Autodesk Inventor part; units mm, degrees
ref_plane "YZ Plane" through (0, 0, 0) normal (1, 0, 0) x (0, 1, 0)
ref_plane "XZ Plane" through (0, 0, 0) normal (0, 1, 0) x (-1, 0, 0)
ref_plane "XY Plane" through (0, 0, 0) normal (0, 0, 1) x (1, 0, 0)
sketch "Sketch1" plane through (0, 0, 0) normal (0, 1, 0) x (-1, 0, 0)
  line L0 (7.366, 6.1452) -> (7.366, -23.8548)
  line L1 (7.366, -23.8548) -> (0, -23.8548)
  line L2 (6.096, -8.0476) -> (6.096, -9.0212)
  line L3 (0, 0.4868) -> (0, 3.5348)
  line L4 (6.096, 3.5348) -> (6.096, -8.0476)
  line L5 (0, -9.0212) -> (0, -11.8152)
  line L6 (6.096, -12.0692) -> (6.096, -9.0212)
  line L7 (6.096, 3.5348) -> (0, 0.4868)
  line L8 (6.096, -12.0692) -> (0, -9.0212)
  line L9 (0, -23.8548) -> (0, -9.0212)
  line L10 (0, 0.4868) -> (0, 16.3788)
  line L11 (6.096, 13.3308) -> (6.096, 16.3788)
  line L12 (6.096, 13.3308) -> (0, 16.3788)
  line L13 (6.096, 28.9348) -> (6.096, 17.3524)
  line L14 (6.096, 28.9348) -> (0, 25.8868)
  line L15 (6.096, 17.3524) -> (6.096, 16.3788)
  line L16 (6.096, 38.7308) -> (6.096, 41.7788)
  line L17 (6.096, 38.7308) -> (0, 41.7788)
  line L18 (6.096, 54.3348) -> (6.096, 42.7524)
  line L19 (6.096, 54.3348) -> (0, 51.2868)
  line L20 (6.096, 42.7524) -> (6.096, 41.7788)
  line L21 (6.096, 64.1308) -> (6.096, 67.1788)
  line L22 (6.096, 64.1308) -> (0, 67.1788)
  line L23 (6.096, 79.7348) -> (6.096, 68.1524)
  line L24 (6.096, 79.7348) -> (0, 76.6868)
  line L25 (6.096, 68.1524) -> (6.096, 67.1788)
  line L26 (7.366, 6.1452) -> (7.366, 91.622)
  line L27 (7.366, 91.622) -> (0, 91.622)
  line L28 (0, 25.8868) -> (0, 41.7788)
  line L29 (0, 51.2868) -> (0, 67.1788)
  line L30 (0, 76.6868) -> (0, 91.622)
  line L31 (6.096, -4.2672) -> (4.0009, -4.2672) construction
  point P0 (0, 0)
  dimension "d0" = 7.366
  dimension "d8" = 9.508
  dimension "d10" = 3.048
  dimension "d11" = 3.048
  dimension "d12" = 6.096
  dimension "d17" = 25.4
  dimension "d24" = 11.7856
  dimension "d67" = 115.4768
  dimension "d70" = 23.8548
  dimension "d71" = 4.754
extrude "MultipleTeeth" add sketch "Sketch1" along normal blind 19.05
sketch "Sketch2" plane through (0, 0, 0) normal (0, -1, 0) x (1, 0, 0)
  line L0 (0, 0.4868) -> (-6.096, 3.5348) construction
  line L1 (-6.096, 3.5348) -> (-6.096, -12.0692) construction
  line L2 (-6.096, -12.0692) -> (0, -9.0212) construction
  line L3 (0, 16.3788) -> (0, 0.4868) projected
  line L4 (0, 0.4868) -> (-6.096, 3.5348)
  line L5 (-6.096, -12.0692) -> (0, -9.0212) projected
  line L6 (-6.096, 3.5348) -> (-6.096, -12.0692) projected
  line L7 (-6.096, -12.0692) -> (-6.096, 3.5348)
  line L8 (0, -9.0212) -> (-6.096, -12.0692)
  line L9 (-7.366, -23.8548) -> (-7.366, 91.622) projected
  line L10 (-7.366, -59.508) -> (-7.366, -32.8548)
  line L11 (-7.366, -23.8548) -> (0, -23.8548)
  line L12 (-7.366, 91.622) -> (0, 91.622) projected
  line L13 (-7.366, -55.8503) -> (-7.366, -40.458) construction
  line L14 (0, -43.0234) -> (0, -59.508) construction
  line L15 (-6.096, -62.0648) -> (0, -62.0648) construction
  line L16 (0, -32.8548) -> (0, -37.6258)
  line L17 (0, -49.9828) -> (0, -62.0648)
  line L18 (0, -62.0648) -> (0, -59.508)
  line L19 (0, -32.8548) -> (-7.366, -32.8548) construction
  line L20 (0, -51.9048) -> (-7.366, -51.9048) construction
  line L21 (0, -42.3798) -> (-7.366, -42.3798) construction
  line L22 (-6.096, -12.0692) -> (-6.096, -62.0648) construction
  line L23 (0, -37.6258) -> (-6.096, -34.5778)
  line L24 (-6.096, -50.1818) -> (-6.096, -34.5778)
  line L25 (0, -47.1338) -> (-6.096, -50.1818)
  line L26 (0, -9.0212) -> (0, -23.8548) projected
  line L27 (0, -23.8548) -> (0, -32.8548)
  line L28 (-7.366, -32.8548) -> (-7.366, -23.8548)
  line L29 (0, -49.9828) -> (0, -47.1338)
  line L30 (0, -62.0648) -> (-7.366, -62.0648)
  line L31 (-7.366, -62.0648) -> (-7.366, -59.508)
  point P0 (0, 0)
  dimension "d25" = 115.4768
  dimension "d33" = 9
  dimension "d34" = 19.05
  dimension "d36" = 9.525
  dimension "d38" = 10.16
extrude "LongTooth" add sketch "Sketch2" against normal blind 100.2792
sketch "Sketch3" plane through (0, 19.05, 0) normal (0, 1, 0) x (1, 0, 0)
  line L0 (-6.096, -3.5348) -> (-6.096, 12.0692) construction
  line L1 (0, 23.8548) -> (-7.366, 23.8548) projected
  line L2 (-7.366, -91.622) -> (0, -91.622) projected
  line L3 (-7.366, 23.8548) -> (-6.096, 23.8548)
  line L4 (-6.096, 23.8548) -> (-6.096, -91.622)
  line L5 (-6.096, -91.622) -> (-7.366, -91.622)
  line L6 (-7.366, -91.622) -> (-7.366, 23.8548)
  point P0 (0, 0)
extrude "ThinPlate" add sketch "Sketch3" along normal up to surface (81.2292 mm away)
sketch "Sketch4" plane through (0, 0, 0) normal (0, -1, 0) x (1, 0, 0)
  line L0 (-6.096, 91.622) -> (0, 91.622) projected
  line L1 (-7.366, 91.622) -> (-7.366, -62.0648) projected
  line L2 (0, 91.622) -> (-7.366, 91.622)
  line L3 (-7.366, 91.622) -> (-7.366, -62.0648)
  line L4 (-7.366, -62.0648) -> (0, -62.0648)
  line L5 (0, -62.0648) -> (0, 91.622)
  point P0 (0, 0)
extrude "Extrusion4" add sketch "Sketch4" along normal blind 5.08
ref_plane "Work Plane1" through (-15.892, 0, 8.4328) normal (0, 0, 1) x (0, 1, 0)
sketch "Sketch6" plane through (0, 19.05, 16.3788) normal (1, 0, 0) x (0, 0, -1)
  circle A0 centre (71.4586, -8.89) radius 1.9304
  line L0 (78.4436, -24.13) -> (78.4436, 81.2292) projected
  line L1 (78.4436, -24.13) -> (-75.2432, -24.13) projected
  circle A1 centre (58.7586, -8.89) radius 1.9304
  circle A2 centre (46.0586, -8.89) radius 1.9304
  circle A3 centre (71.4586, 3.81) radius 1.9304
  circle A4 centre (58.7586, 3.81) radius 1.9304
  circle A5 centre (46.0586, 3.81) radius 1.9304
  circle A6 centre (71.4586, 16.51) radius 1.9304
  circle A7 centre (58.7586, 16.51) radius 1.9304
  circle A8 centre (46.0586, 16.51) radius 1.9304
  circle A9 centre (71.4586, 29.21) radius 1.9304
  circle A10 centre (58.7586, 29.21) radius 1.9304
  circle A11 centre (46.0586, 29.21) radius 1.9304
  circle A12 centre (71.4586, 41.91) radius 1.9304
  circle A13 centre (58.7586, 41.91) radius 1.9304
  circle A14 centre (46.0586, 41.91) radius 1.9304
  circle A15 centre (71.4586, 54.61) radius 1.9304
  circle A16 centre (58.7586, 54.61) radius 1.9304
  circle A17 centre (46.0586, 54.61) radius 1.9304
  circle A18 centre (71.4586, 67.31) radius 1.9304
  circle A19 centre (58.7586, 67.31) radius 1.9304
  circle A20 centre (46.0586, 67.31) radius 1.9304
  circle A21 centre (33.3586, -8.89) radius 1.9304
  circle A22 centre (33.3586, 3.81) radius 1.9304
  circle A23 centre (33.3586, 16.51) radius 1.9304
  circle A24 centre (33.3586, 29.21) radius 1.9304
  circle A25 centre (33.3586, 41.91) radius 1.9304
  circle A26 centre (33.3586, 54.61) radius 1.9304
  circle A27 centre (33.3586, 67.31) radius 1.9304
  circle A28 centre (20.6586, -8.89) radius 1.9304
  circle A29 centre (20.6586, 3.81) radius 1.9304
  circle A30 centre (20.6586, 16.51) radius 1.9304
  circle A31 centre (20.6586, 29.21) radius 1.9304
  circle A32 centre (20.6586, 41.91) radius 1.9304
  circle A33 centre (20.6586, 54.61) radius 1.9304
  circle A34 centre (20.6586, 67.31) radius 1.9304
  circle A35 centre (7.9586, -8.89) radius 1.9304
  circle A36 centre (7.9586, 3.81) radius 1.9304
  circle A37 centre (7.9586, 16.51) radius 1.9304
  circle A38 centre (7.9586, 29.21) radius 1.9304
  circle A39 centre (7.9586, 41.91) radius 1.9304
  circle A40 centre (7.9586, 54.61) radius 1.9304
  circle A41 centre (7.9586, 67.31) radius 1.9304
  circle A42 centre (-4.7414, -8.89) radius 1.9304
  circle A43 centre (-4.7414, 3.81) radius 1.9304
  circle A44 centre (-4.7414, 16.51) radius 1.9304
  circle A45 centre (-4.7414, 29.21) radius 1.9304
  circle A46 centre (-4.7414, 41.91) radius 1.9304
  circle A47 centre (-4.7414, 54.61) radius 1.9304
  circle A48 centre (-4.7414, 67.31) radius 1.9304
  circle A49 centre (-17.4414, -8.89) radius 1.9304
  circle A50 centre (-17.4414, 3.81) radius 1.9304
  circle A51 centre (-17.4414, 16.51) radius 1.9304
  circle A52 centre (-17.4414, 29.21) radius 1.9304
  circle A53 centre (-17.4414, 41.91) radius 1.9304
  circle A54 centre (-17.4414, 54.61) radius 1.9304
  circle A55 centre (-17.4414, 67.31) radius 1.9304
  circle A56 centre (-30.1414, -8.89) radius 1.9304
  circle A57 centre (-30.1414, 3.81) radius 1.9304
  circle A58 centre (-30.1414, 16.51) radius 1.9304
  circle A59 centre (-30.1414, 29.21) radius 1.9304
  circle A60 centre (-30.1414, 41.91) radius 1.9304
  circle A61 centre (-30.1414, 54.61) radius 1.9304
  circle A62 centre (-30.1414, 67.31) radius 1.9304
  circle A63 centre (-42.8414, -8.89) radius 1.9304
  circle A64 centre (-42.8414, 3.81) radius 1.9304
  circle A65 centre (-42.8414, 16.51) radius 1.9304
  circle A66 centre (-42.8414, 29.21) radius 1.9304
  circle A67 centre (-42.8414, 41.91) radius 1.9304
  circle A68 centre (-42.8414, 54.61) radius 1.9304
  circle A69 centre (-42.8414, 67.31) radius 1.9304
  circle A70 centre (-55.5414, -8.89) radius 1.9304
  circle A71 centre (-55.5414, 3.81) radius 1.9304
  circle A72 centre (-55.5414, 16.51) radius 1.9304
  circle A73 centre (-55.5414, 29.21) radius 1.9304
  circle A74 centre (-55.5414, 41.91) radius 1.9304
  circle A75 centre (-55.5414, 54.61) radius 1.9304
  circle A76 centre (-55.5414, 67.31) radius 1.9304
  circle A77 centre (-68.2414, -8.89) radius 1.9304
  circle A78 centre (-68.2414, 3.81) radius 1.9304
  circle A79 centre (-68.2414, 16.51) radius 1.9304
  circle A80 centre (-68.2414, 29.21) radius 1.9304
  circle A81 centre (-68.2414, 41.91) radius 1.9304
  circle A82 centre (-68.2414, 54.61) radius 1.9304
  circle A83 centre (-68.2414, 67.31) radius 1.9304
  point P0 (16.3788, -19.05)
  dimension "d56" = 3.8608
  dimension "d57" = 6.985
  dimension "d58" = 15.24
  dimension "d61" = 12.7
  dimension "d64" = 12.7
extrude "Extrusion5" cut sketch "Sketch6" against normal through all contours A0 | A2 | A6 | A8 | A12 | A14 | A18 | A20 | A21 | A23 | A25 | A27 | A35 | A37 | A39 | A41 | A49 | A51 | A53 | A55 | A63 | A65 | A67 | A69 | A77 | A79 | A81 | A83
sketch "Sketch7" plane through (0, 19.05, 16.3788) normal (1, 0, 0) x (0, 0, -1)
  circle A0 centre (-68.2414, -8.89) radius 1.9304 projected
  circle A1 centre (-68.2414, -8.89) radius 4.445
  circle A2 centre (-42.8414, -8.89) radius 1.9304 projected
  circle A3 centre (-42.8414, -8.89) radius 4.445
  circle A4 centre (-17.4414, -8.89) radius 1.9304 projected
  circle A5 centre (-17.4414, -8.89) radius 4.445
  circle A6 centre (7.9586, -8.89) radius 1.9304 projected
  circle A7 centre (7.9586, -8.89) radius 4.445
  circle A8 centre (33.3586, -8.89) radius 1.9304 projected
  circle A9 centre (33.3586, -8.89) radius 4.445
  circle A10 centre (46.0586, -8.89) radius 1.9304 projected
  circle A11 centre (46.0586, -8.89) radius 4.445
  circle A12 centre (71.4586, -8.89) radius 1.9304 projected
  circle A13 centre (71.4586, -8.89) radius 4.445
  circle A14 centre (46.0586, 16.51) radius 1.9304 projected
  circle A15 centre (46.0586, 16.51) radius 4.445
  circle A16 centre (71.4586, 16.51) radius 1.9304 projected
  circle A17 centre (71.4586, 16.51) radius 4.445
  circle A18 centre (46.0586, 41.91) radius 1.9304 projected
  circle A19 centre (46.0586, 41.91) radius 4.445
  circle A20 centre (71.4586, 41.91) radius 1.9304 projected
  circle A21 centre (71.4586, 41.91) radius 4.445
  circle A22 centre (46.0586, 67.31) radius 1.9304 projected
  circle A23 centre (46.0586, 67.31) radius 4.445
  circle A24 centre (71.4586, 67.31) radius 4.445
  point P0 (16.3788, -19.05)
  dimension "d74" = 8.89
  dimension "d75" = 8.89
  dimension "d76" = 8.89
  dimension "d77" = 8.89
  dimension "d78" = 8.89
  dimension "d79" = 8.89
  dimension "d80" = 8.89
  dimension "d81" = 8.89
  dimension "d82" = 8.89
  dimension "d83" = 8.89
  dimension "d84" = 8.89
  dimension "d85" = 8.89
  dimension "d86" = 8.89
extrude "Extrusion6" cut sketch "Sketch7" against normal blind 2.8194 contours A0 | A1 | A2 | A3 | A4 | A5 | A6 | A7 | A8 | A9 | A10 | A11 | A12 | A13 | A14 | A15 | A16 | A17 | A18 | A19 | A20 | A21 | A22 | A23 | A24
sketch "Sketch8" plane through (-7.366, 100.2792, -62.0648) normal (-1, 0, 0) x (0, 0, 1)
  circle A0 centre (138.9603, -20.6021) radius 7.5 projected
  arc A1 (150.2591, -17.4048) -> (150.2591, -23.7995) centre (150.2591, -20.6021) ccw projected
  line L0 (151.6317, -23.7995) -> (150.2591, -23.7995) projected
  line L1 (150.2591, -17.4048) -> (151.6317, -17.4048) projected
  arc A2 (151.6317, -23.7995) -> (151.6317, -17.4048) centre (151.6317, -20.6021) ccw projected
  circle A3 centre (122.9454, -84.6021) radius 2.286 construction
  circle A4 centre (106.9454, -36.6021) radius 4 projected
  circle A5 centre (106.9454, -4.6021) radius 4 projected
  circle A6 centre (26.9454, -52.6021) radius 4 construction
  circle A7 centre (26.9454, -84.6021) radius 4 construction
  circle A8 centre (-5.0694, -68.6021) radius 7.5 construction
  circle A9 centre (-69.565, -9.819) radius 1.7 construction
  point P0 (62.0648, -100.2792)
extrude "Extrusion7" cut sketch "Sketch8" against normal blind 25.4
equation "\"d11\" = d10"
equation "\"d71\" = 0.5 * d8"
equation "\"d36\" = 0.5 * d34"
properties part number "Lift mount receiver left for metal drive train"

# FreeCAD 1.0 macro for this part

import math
import FreeCAD as App
import Part
import Sketcher
Q = App.Units.Quantity


def add_polygon(sketch, points):
    """Adds a closed chain of lines whose ends are joined by coincident constraints."""
    first, n = sketch.GeometryCount, len(points)
    for a, b in zip(points, points[1:] + points[:1]):
        sketch.addGeometry(Part.LineSegment(App.Vector(*a, 0), App.Vector(*b, 0)), False)
    for i in range(n):
        sketch.addConstraint(Sketcher.Constraint("Coincident", first + i, 2, first + (i + 1) % n, 1))

doc = App.newDocument("Part")
body = doc.addObject("PartDesign::Body", "Body")

sketch1 = body.newObject("Sketcher::SketchObject", "Sketch")
sketch1.AttachmentSupport = (doc.getObject("XZ_Plane"), [""])
sketch1.MapMode = "FlatFace"
add_polygon(sketch1, [(-7, -24), (-7, 92), (0, 92), (0, 77), (-6, 80), (-6, 64), (0, 67), (0, 51), (-6, 54), (-6, 39), (0, 42), (0, 26), (-6, 29), (-6, 13), (0, 16), (0, 0), (-6, 4), (-6, -12), (0, -9), (0, -24)])
sketch1.addConstraint([
    Sketcher.Constraint("Vertical", 0),
    Sketcher.Constraint("Horizontal", 1),
    Sketcher.Constraint("Vertical", 2),
    Sketcher.Constraint("Vertical", 4),
    Sketcher.Constraint("Vertical", 6),
    Sketcher.Constraint("Vertical", 8),
    Sketcher.Constraint("Vertical", 10),
    Sketcher.Constraint("Vertical", 12),
    Sketcher.Constraint("Vertical", 14),
    Sketcher.Constraint("Vertical", 16),
    Sketcher.Constraint("Vertical", 18),
    Sketcher.Constraint("Horizontal", 19),
    Sketcher.Constraint("PointOnObject", 1, 2, -2),
    Sketcher.Constraint("PointOnObject", 5, 2, -2),
    Sketcher.Constraint("PointOnObject", 9, 2, -2),
    Sketcher.Constraint("PointOnObject", 13, 2, -2),
    Sketcher.Constraint("PointOnObject", 17, 2, -2),
    Sketcher.Constraint("Parallel", 3, 7),
    Sketcher.Constraint("Parallel", 5, 9),
    Sketcher.Constraint("Parallel", 7, 11),
    Sketcher.Constraint("Parallel", 9, 13),
    Sketcher.Constraint("Parallel", 11, 15),
    Sketcher.Constraint("Parallel", 13, 17),
    Sketcher.Constraint("Vertical", 4, 2, 7, 2),
    Sketcher.Constraint("Vertical", 8, 2, 11, 2),
    Sketcher.Constraint("Vertical", 12, 2, 15, 2),
    Sketcher.Constraint("Equal", 4, 8),
    Sketcher.Constraint("Equal", 6, 10),
    Sketcher.Constraint("Equal", 8, 12),
    Sketcher.Constraint("Equal", 10, 14),
    Sketcher.Constraint("Equal", 12, 16),
    Sketcher.Constraint("Equal", 3, 5),
    Sketcher.Constraint("DistanceY", 6, 2, 2, 2, Q("1 in")),
    Sketcher.Constraint("DistanceX", 1, 1, 1, 2, Q("0.29 in")),
    Sketcher.Constraint("DistanceX", 3, 2, -1, 1, Q("0.24 in")),
    Sketcher.Constraint("DistanceY", 2, 2, 3, 2, Q("0.12 in")),
    Sketcher.Constraint("DistanceY", 18, 2, 16, 2, Q("0.464 in")),
    Sketcher.Constraint("DistanceY", 0, 1, 0, 2, 115.4768),
    Sketcher.Constraint("DistanceY", 2, 2, 2, 1, Q("0.588 in")),
    Sketcher.Constraint("DistanceY", 18, 2, -1, 1, 23.8548),
])
pad1 = body.newObject("PartDesign::Pad", "Pad")
pad1.Profile = sketch1
pad1.Length = Q("0.75 in")
pad1.Reversed = True

sketch2 = body.newObject("Sketcher::SketchObject", "Sketch001")
sketch2.AttachmentSupport = (doc.getObject("XZ_Plane"), [""])
sketch2.MapMode = "FlatFace"
add_polygon(sketch2, [(-7, -24), (-7, -62), (0, -62), (0, -47), (-6, -50), (-6, -35), (0, -38), (0, -24)])
sketch2.addConstraint([
    Sketcher.Constraint("Vertical", 0),
    Sketcher.Constraint("Horizontal", 1),
    Sketcher.Constraint("Vertical", 2),
    Sketcher.Constraint("Vertical", 4),
    Sketcher.Constraint("Vertical", 6),
    Sketcher.Constraint("Horizontal", 7),
    Sketcher.Constraint("PointOnObject", 1, 2, -2),
    Sketcher.Constraint("PointOnObject", 5, 2, -2),
    Sketcher.Constraint("Equal", 3, 5),
    Sketcher.Constraint("DistanceX", 1, 1, 1, 2, Q("0.29 in")),
    Sketcher.Constraint("DistanceX", 3, 2, -1, 1, Q("0.24 in")),
    Sketcher.Constraint("DistanceY", 3, 2, 2, 2, Q("0.12 in")),
    Sketcher.Constraint("DistanceY", 0, 2, 0, 1, 38.21),
    Sketcher.Constraint("DistanceY", 2, 1, 2, 2, 14.931),
    Sketcher.Constraint("DistanceY", 4, 1, 4, 2, 15.604),
    Sketcher.Constraint("DistanceY", 0, 2, -1, 1, Q("2.4435 in")),
])
pad2 = body.newObject("PartDesign::Pad", "Pad001")
pad2.Profile = sketch2
pad2.Length = Q("3.948 in")
pad2.Reversed = True

sketch3 = body.newObject("Sketcher::SketchObject", "Sketch002")
sketch3.AttachmentSupport = (doc.getObject("XZ_Plane"), [""])
sketch3.MapMode = "FlatFace"
sketch3.AttachmentOffset = App.Placement(App.Vector(0, 0, -0.75 * 25.4), App.Rotation())
add_polygon(sketch3, [(-6.1, 91.6), (-6.1, -23.9), (-7.4, -23.9), (-7.4, 91.6)])
sketch3.addConstraint([
    Sketcher.Constraint("Vertical", 0),
    Sketcher.Constraint("Horizontal", 1),
    Sketcher.Constraint("Vertical", 2),
    Sketcher.Constraint("Horizontal", 3),
    Sketcher.Constraint("DistanceX", 1, 2, 1, 1, Q("0.05 in")),
    Sketcher.Constraint("DistanceX", 0, 2, -1, 1, Q("0.24 in")),
    Sketcher.Constraint("DistanceY", 0, 2, 0, 1, 115.4768),
    Sketcher.Constraint("DistanceY", 0, 2, -1, 1, 23.8548),
])
pad3 = body.newObject("PartDesign::Pad", "Pad002")
pad3.Profile = sketch3
pad3.Length = Q("3.198 in")
pad3.Reversed = True

sketch4 = body.newObject("Sketcher::SketchObject", "Sketch003")
sketch4.AttachmentSupport = (doc.getObject("XZ_Plane"), [""])
sketch4.MapMode = "FlatFace"
add_polygon(sketch4, [(0, 92), (-7, 92), (-7, -62), (0, -62)])
sketch4.addConstraint([
    Sketcher.Constraint("Horizontal", 0),
    Sketcher.Constraint("Vertical", 1),
    Sketcher.Constraint("Horizontal", 2),
    Sketcher.Constraint("Vertical", 3),
    Sketcher.Constraint("PointOnObject", 2, 2, -2),
    Sketcher.Constraint("DistanceX", 0, 2, 0, 1, Q("0.29 in")),
    Sketcher.Constraint("DistanceY", 1, 2, 1, 1, 153.6868),
    Sketcher.Constraint("DistanceY", 1, 2, -1, 1, Q("2.4435 in")),
])
pad4 = body.newObject("PartDesign::Pad", "Pad003")
pad4.Profile = sketch4
pad4.Length = Q("0.2 in")

sketch5 = body.newObject("Sketcher::SketchObject", "Sketch004")
sketch5.AttachmentSupport = (doc.getObject("YZ_Plane"), [""])
sketch5.MapMode = "FlatFace"
sketch5.addGeometry([
    Part.Circle(App.Vector(10.2, -55.1, 0), App.Vector(0, 0, 1), 1.9),
    Part.Circle(App.Vector(10.2, -29.7, 0), App.Vector(0, 0, 1), 1.9),
    Part.Circle(App.Vector(35.6, -55.1, 0), App.Vector(0, 0, 1), 1.9),
    Part.Circle(App.Vector(35.6, -29.7, 0), App.Vector(0, 0, 1), 1.9),
    Part.Circle(App.Vector(61, -55.1, 0), App.Vector(0, 0, 1), 1.9),
    Part.Circle(App.Vector(61, -29.7, 0), App.Vector(0, 0, 1), 1.9),
    Part.Circle(App.Vector(86.4, -55.1, 0), App.Vector(0, 0, 1), 1.9),
    Part.Circle(App.Vector(86.4, -29.7, 0), App.Vector(0, 0, 1), 1.9),
    Part.Circle(App.Vector(10.2, -17, 0), App.Vector(0, 0, 1), 1.9),
    Part.Circle(App.Vector(35.6, -17, 0), App.Vector(0, 0, 1), 1.9),
    Part.Circle(App.Vector(61, -17, 0), App.Vector(0, 0, 1), 1.9),
    Part.Circle(App.Vector(86.4, -17, 0), App.Vector(0, 0, 1), 1.9),
    Part.Circle(App.Vector(10.2, 8.4, 0), App.Vector(0, 0, 1), 1.9),
    Part.Circle(App.Vector(35.6, 8.4, 0), App.Vector(0, 0, 1), 1.9),
    Part.Circle(App.Vector(61, 8.4, 0), App.Vector(0, 0, 1), 1.9),
    Part.Circle(App.Vector(86.4, 8.4, 0), App.Vector(0, 0, 1), 1.9),
    Part.Circle(App.Vector(10.2, 33.8, 0), App.Vector(0, 0, 1), 1.9),
    Part.Circle(App.Vector(35.6, 33.8, 0), App.Vector(0, 0, 1), 1.9),
    Part.Circle(App.Vector(61, 33.8, 0), App.Vector(0, 0, 1), 1.9),
    Part.Circle(App.Vector(86.4, 33.8, 0), App.Vector(0, 0, 1), 1.9),
    Part.Circle(App.Vector(10.2, 59.2, 0), App.Vector(0, 0, 1), 1.9),
    Part.Circle(App.Vector(35.6, 59.2, 0), App.Vector(0, 0, 1), 1.9),
    Part.Circle(App.Vector(61, 59.2, 0), App.Vector(0, 0, 1), 1.9),
    Part.Circle(App.Vector(86.4, 59.2, 0), App.Vector(0, 0, 1), 1.9),
    Part.Circle(App.Vector(10.2, 84.6, 0), App.Vector(0, 0, 1), 1.9),
    Part.Circle(App.Vector(35.6, 84.6, 0), App.Vector(0, 0, 1), 1.9),
    Part.Circle(App.Vector(61, 84.6, 0), App.Vector(0, 0, 1), 1.9),
    Part.Circle(App.Vector(86.4, 84.6, 0), App.Vector(0, 0, 1), 1.9),
], False)
sketch5.addConstraint([
    Sketcher.Constraint("Equal", 0, 1),
    Sketcher.Constraint("Equal", 1, 2),
    Sketcher.Constraint("Equal", 2, 3),
    Sketcher.Constraint("Equal", 3, 4),
    Sketcher.Constraint("Equal", 4, 5),
    Sketcher.Constraint("Equal", 5, 6),
    Sketcher.Constraint("Equal", 6, 7),
    Sketcher.Constraint("Equal", 7, 8),
    Sketcher.Constraint("Equal", 8, 9),
    Sketcher.Constraint("Equal", 9, 10),
    Sketcher.Constraint("Equal", 10, 11),
    Sketcher.Constraint("Equal", 11, 12),
    Sketcher.Constraint("Equal", 12, 13),
    Sketcher.Constraint("Equal", 13, 14),
    Sketcher.Constraint("Equal", 14, 15),
    Sketcher.Constraint("Equal", 15, 16),
    Sketcher.Constraint("Equal", 16, 17),
    Sketcher.Constraint("Equal", 17, 18),
    Sketcher.Constraint("Equal", 18, 19),
    Sketcher.Constraint("Equal", 19, 20),
    Sketcher.Constraint("Equal", 20, 21),
    Sketcher.Constraint("Equal", 21, 22),
    Sketcher.Constraint("Equal", 22, 23),
    Sketcher.Constraint("Equal", 23, 24),
    Sketcher.Constraint("Equal", 24, 25),
    Sketcher.Constraint("Equal", 25, 26),
    Sketcher.Constraint("Equal", 26, 27),
    Sketcher.Constraint("Horizontal", 0, 3, 2, 3),
    Sketcher.Constraint("Horizontal", 1, 3, 3, 3),
    Sketcher.Constraint("Horizontal", 2, 3, 4, 3),
    Sketcher.Constraint("Horizontal", 3, 3, 5, 3),
    Sketcher.Constraint("Horizontal", 4, 3, 6, 3),
    Sketcher.Constraint("Horizontal", 5, 3, 7, 3),
    Sketcher.Constraint("Horizontal", 8, 3, 9, 3),
    Sketcher.Constraint("Horizontal", 9, 3, 10, 3),
    Sketcher.Constraint("Horizontal", 10, 3, 11, 3),
    Sketcher.Constraint("Horizontal", 12, 3, 13, 3),
    Sketcher.Constraint("Horizontal", 13, 3, 14, 3),
    Sketcher.Constraint("Horizontal", 14, 3, 15, 3),
    Sketcher.Constraint("Horizontal", 16, 3, 17, 3),
    Sketcher.Constraint("Horizontal", 17, 3, 18, 3),
    Sketcher.Constraint("Horizontal", 18, 3, 19, 3),
    Sketcher.Constraint("Horizontal", 20, 3, 21, 3),
    Sketcher.Constraint("Horizontal", 21, 3, 22, 3),
    Sketcher.Constraint("Horizontal", 22, 3, 23, 3),
    Sketcher.Constraint("Horizontal", 24, 3, 25, 3),
    Sketcher.Constraint("Horizontal", 25, 3, 26, 3),
    Sketcher.Constraint("Horizontal", 26, 3, 27, 3),
    Sketcher.Constraint("Vertical", 0, 3, 1, 3),
    Sketcher.Constraint("Vertical", 2, 3, 3, 3),
    Sketcher.Constraint("Vertical", 4, 3, 5, 3),
    Sketcher.Constraint("Vertical", 6, 3, 7, 3),
    Sketcher.Constraint("Vertical", 1, 3, 8, 3),
    Sketcher.Constraint("Vertical", 3, 3, 9, 3),
    Sketcher.Constraint("Vertical", 5, 3, 10, 3),
    Sketcher.Constraint("Vertical", 7, 3, 11, 3),
    Sketcher.Constraint("Vertical", 8, 3, 12, 3),
    Sketcher.Constraint("Vertical", 9, 3, 13, 3),
    Sketcher.Constraint("Vertical", 10, 3, 14, 3),
    Sketcher.Constraint("Vertical", 11, 3, 15, 3),
    Sketcher.Constraint("Vertical", 12, 3, 16, 3),
    Sketcher.Constraint("Vertical", 13, 3, 17, 3),
    Sketcher.Constraint("Vertical", 14, 3, 18, 3),
    Sketcher.Constraint("Vertical", 15, 3, 19, 3),
    Sketcher.Constraint("Vertical", 16, 3, 20, 3),
    Sketcher.Constraint("Vertical", 17, 3, 21, 3),
    Sketcher.Constraint("Vertical", 18, 3, 22, 3),
    Sketcher.Constraint("Vertical", 19, 3, 23, 3),
    Sketcher.Constraint("Vertical", 20, 3, 24, 3),
    Sketcher.Constraint("Vertical", 21, 3, 25, 3),
    Sketcher.Constraint("Vertical", 22, 3, 26, 3),
    Sketcher.Constraint("Vertical", 23, 3, 27, 3),
    Sketcher.Constraint("Diameter", 0, Q("0.152 in")),
    Sketcher.Constraint("DistanceY", 1, 3, 8, 3, Q("0.5 in")),
    Sketcher.Constraint("DistanceY", 0, 3, 1, 3, Q("1 in")),
    Sketcher.Constraint("DistanceX", 0, 3, 2, 3, Q("1 in")),
    Sketcher.Constraint("DistanceX", 2, 3, 4, 3, Q("1 in")),
    Sketcher.Constraint("DistanceX", 4, 3, 6, 3, Q("1 in")),
    Sketcher.Constraint("DistanceY", 8, 3, 12, 3, Q("1 in")),
    Sketcher.Constraint("DistanceY", 12, 3, 16, 3, Q("1 in")),
    Sketcher.Constraint("DistanceY", 16, 3, 20, 3, Q("1 in")),
    Sketcher.Constraint("DistanceY", 20, 3, 24, 3, Q("1 in")),
    Sketcher.Constraint("DistanceX", -1, 1, 0, 3, Q("0.4 in")),
    Sketcher.Constraint("DistanceY", 0, 3, -1, 1, Q("2.1685 in")),
])
pocket1 = body.newObject("PartDesign::Pocket", "Pocket")
pocket1.Profile = sketch5
pocket1.Type = "ThroughAll"

sketch6 = body.newObject("Sketcher::SketchObject", "Sketch005")
sketch6.AttachmentSupport = (doc.getObject("YZ_Plane"), [""])
sketch6.MapMode = "FlatFace"
sketch6.addGeometry([
    Part.Circle(App.Vector(10.2, 84.6, 0), App.Vector(0, 0, 1), 4.4),
    Part.Circle(App.Vector(10.2, 59.2, 0), App.Vector(0, 0, 1), 4.4),
    Part.Circle(App.Vector(10.2, 33.8, 0), App.Vector(0, 0, 1), 4.4),
    Part.Circle(App.Vector(10.2, 8.4, 0), App.Vector(0, 0, 1), 4.4),
    Part.Circle(App.Vector(10.2, -17, 0), App.Vector(0, 0, 1), 4.4),
    Part.Circle(App.Vector(10.2, -29.7, 0), App.Vector(0, 0, 1), 4.4),
    Part.Circle(App.Vector(10.2, -55.1, 0), App.Vector(0, 0, 1), 4.4),
    Part.Circle(App.Vector(35.6, -29.7, 0), App.Vector(0, 0, 1), 4.4),
    Part.Circle(App.Vector(35.6, -55.1, 0), App.Vector(0, 0, 1), 4.4),
    Part.Circle(App.Vector(61, -29.7, 0), App.Vector(0, 0, 1), 4.4),
    Part.Circle(App.Vector(61, -55.1, 0), App.Vector(0, 0, 1), 4.4),
    Part.Circle(App.Vector(86.4, -29.7, 0), App.Vector(0, 0, 1), 4.4),
    Part.Circle(App.Vector(86.4, -55.1, 0), App.Vector(0, 0, 1), 4.4),
], False)
sketch6.addConstraint([
    Sketcher.Constraint("Equal", 0, 1),
    Sketcher.Constraint("Equal", 1, 2),
    Sketcher.Constraint("Equal", 2, 3),
    Sketcher.Constraint("Equal", 3, 4),
    Sketcher.Constraint("Equal", 4, 5),
    Sketcher.Constraint("Equal", 5, 6),
    Sketcher.Constraint("Equal", 6, 7),
    Sketcher.Constraint("Equal", 7, 8),
    Sketcher.Constraint("Equal", 8, 9),
    Sketcher.Constraint("Equal", 9, 10),
    Sketcher.Constraint("Equal", 10, 11),
    Sketcher.Constraint("Equal", 11, 12),
    Sketcher.Constraint("Horizontal", 5, 3, 7, 3),
    Sketcher.Constraint("Horizontal", 6, 3, 8, 3),
    Sketcher.Constraint("Horizontal", 7, 3, 9, 3),
    Sketcher.Constraint("Horizontal", 8, 3, 10, 3),
    Sketcher.Constraint("Horizontal", 9, 3, 11, 3),
    Sketcher.Constraint("Horizontal", 10, 3, 12, 3),
    Sketcher.Constraint("Vertical", 0, 3, 1, 3),
    Sketcher.Constraint("Vertical", 1, 3, 2, 3),
    Sketcher.Constraint("Vertical", 2, 3, 3, 3),
    Sketcher.Constraint("Vertical", 3, 3, 4, 3),
    Sketcher.Constraint("Vertical", 4, 3, 5, 3),
    Sketcher.Constraint("Vertical", 5, 3, 6, 3),
    Sketcher.Constraint("Vertical", 7, 3, 8, 3),
    Sketcher.Constraint("Vertical", 9, 3, 10, 3),
    Sketcher.Constraint("Vertical", 11, 3, 12, 3),
    Sketcher.Constraint("Diameter", 0, Q("0.35 in")),
    Sketcher.Constraint("DistanceY", 1, 3, 0, 3, Q("1 in")),
    Sketcher.Constraint("DistanceY", 2, 3, 1, 3, Q("1 in")),
    Sketcher.Constraint("DistanceY", 3, 3, 2, 3, Q("1 in")),
    Sketcher.Constraint("DistanceY", 4, 3, 3, 3, Q("1 in")),
    Sketcher.Constraint("DistanceY", 6, 3, 5, 3, Q("1 in")),
    Sketcher.Constraint("DistanceX", 5, 3, 7, 3, Q("1 in")),
    Sketcher.Constraint("DistanceX", 7, 3, 9, 3, Q("1 in")),
    Sketcher.Constraint("DistanceX", 9, 3, 11, 3, Q("1 in")),
    Sketcher.Constraint("DistanceX", -1, 1, 0, 3, Q("0.4 in")),
    Sketcher.Constraint("DistanceY", 5, 3, 4, 3, Q("0.5 in")),
    Sketcher.Constraint("DistanceY", -1, 1, 0, 3, Q("3.3315 in")),
])
pocket2 = body.newObject("PartDesign::Pocket", "Pocket001")
pocket2.Profile = sketch6
pocket2.Length = Q("0.111 in")

sketch7 = body.newObject("Sketcher::SketchObject", "Sketch006")
sketch7.AttachmentSupport = (doc.getObject("YZ_Plane"), [""])
sketch7.MapMode = "FlatFace"
sketch7.AttachmentOffset = App.Placement(App.Vector(0, 0, -0.29 * 25.4), App.Rotation())
sketch7.addGeometry([
    Part.Circle(App.Vector(79.7, 76.9, 0), App.Vector(0, 0, 1), 7.5),
    Part.LineSegment(App.Vector(82.9, 89.6, 0), App.Vector(82.9, 88.2, 0)),
    Part.ArcOfCircle(Part.Circle(App.Vector(79.7, 88.2, 0), App.Vector(0, 0, 1), 3.2), math.radians(180), math.radians(360)),
    Part.LineSegment(App.Vector(76.5, 88.2, 0), App.Vector(76.5, 89.6, 0)),
    Part.ArcOfCircle(Part.Circle(App.Vector(79.7, 89.6, 0), App.Vector(0, 0, 1), 3.2), math.radians(0), math.radians(180)),
    Part.Circle(App.Vector(63.7, 44.9, 0), App.Vector(0, 0, 1), 4),
    Part.Circle(App.Vector(95.7, 44.9, 0), App.Vector(0, 0, 1), 4),
], False)
sketch7.addConstraint([
    Sketcher.Constraint("Tangent", 1, 2, 2, 2),
    Sketcher.Constraint("Tangent", 2, 1, 3, 1),
    Sketcher.Constraint("Tangent", 3, 2, 4, 2),
    Sketcher.Constraint("Tangent", 4, 1, 1, 1),
    Sketcher.Constraint("Vertical", 1),
    Sketcher.Constraint("Vertical", 3),
    Sketcher.Constraint("Equal", 5, 6),
    Sketcher.Constraint("Horizontal", 5, 3, 6, 3),
    Sketcher.Constraint("Vertical", 0, 3, 2, 3),
    Sketcher.Constraint("Diameter", 0, 15.0),
    Sketcher.Constraint("Diameter", 5, 8.0),
    Sketcher.Constraint("Radius", 2, 3.1973),
    Sketcher.Constraint("DistanceX", -1, 1, 3, 2, Q("3.011 in")),
    Sketcher.Constraint("DistanceY", 1, 2, 1, 1, 1.3726),
    Sketcher.Constraint("DistanceY", 5, 3, 4, 3, Q("1.7593 in")),
    Sketcher.Constraint("DistanceX", 5, 3, 1, 2, Q("0.7558 in")),
    Sketcher.Constraint("DistanceY", -1, 1, 0, 3, 76.8955),
    Sketcher.Constraint("DistanceY", -1, 1, 2, 3, 88.1943),
    Sketcher.Constraint("DistanceX", -1, 1, 6, 3, Q("3.766811 in")),
])
pocket3 = body.newObject("PartDesign::Pocket", "Pocket002")
pocket3.Profile = sketch7
pocket3.Length = Q("1 in")
pocket3.Reversed = True

doc.recompute()
